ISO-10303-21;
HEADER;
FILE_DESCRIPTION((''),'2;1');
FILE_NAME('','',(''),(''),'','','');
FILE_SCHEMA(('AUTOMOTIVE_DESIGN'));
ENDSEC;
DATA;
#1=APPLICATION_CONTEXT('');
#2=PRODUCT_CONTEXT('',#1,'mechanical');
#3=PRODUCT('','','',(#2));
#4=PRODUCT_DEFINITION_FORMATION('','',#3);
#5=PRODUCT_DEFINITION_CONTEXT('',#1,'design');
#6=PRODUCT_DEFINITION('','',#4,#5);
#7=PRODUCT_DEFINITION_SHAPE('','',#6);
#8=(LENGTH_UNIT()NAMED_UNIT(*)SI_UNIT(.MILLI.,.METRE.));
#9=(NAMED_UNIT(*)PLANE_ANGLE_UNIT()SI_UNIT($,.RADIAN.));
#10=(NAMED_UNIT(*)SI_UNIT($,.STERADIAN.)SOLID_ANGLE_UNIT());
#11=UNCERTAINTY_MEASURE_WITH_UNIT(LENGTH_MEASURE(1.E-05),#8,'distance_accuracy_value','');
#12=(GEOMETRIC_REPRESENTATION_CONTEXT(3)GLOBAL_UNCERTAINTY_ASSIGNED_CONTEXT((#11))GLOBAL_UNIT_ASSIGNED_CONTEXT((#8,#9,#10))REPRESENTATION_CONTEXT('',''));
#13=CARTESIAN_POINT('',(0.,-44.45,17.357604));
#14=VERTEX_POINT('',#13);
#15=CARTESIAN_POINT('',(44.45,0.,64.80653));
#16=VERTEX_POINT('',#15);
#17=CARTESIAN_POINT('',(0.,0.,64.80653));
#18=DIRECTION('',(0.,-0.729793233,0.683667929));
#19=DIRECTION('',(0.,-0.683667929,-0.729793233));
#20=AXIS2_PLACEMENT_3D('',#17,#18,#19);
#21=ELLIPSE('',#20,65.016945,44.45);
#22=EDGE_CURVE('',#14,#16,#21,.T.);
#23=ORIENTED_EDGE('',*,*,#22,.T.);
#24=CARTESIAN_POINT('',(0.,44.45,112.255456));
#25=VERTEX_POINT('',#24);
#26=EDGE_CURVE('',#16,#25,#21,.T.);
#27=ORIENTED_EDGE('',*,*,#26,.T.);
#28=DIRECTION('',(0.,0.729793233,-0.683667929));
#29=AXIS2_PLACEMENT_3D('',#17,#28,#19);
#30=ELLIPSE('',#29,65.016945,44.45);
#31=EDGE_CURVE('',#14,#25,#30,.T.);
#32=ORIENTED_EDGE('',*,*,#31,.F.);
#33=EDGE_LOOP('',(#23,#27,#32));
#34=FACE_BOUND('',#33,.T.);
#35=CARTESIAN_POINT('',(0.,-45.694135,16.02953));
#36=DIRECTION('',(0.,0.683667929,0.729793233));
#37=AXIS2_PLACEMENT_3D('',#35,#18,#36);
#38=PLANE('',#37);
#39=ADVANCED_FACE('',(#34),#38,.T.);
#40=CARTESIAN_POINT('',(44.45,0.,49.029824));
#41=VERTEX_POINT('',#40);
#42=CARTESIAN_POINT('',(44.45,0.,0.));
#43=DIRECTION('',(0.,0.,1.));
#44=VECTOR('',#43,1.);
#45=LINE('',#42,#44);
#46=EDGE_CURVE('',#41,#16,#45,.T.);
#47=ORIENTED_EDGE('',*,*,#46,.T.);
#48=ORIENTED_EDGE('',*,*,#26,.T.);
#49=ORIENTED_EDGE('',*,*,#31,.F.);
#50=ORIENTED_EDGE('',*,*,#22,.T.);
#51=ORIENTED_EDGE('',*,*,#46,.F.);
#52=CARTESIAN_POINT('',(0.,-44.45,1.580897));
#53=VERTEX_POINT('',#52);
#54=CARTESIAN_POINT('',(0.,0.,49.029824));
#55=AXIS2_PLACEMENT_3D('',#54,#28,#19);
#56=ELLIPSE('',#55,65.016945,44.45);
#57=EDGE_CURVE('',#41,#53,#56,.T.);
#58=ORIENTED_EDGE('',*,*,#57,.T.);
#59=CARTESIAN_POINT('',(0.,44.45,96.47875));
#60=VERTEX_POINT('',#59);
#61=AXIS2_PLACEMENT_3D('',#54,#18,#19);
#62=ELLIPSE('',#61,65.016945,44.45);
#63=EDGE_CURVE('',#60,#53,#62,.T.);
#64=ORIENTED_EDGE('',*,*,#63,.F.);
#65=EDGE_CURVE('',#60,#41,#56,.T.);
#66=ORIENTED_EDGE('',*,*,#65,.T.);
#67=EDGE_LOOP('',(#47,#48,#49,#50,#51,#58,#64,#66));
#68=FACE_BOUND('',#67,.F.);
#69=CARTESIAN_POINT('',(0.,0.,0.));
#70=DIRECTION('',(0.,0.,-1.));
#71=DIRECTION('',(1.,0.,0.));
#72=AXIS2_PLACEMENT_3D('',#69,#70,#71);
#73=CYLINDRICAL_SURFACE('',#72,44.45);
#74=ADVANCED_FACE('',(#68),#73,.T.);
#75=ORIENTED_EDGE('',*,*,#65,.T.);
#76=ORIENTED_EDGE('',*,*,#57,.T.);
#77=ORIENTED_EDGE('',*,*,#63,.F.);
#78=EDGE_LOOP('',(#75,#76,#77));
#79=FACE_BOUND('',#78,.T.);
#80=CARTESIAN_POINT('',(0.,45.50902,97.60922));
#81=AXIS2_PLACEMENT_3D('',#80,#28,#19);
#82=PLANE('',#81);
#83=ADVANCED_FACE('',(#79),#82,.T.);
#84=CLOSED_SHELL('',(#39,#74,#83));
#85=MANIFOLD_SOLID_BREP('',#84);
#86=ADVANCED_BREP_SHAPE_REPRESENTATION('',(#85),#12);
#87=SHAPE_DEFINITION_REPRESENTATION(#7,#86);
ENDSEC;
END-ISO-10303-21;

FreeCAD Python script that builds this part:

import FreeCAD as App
import Part
import Sketcher

V = App.Vector
Q = App.Units.Quantity


def add_polygon(sketch, points):
    """Adds a closed chain of lines whose ends are joined by coincident constraints."""
    first, n = sketch.GeometryCount, len(points)
    for a, b in zip(points, points[1:] + points[:1]):
        sketch.addGeometry(Part.LineSegment(App.Vector(*a, 0), App.Vector(*b, 0)), False)
    for i in range(n):
        sketch.addConstraint(Sketcher.Constraint("Coincident", first + i, 2, first + (i + 1) % n, 1))

doc = App.newDocument("Part")
body = doc.addObject("PartDesign::Body", "Body")

sketch1 = body.newObject("Sketcher::SketchObject", "Sketch")
sketch1.AttachmentSupport = (doc.getObject("XY_Plane"), [""])
sketch1.MapMode = "FlatFace"
sketch1.addGeometry(Part.Circle(V(0, 0, 0), V(0, 0, 1), 44.45), False)
sketch1.addConstraint([
    Sketcher.Constraint("Coincident", 0, 3, -1, 1),
    Sketcher.Constraint("Diameter", 0, Q("3.5 in")),
])
pad1 = body.newObject("PartDesign::Pad", "Pad")
pad1.Profile = sketch1
pad1.Length = Q("4.4898 in")

sketch2 = body.newObject("Sketcher::SketchObject", "Sketch001")
sketch2.AttachmentSupport = (doc.getObject("YZ_Plane"), [""])
sketch2.MapMode = "FlatFace"
add_polygon(sketch2, [(45.50902, 97.60922), (-45.93098, 0), (45.50902, 0)])
add_polygon(sketch2, [(-45.694135, 115.08953), (-45.694135, 16.02953), (47.104951, 115.08953)])
sketch2.addConstraint([
    Sketcher.Constraint("Horizontal", 1),
    Sketcher.Constraint("Vertical", 2),
    Sketcher.Constraint("Vertical", 3),
    Sketcher.Constraint("Horizontal", 5),
    Sketcher.Constraint("PointOnObject", 0, 2, -1),
    Sketcher.Constraint("Parallel", 0, 4),
    Sketcher.Constraint("DistanceX", 1, 1, 1, 2, Q("3.6 in")),
    Sketcher.Constraint("DistanceY", 3, 2, 3, 1, Q("3.9 in")),
    Sketcher.Constraint("DistanceY", 2, 1, 2, 2, 97.60922),
    Sketcher.Constraint("DistanceX", 0, 2, -1, 1, 45.93098),
    Sketcher.Constraint("DistanceY", -1, 1, 3, 2, 16.02953),
    Sketcher.Constraint("DistanceX", -1, 1, 4, 2, 47.104951),
])
pocket1 = body.newObject("PartDesign::Pocket", "Pocket")
pocket1.Profile = sketch2
pocket1.Type = "ThroughAll"
pocket1.Midplane = True

doc.recompute()
